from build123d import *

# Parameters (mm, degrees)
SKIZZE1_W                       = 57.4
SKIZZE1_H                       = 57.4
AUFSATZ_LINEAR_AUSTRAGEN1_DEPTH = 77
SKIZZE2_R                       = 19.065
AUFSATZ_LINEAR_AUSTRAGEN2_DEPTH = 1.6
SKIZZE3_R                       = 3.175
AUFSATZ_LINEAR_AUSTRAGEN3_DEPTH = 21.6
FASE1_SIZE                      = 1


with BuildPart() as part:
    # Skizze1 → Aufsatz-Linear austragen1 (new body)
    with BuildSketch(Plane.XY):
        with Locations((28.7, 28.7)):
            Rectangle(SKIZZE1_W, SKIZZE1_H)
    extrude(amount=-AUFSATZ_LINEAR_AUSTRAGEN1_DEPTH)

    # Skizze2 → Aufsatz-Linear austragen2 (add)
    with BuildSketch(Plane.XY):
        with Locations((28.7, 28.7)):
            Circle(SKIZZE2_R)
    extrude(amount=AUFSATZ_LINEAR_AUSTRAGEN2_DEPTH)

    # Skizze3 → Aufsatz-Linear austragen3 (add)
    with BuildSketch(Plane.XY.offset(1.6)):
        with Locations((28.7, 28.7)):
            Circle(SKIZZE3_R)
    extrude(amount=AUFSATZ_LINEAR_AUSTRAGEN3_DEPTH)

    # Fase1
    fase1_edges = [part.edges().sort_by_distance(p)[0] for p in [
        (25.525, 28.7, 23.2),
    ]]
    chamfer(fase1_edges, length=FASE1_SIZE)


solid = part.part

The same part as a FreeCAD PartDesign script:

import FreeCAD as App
import Part
import Sketcher


def edges_at(feature, points):
    """Names of the edges that pass closest to the given points."""
    edges = feature.Shape.Edges
    near = lambda p: min(range(len(edges)), key=lambda i: edges[i].distToShape(Part.Vertex(*p))[0])
    return sorted({f"Edge{near(p) + 1}" for p in points})


def add_polygon(sketch, points):
    """Adds a closed chain of lines whose ends are joined by coincident constraints."""
    first, n = sketch.GeometryCount, len(points)
    for a, b in zip(points, points[1:] + points[:1]):
        sketch.addGeometry(Part.LineSegment(App.Vector(*a, 0), App.Vector(*b, 0)), False)
    for i in range(n):
        sketch.addConstraint(Sketcher.Constraint("Coincident", first + i, 2, first + (i + 1) % n, 1))

doc = App.newDocument("Part")
body = doc.addObject("PartDesign::Body", "Body")

sketch1 = body.newObject("Sketcher::SketchObject", "Sketch")
sketch1.AttachmentSupport = (doc.getObject("XY_Plane"), [""])
sketch1.MapMode = "FlatFace"
add_polygon(sketch1, [(0, 57.4), (0, 0), (57.4, 0), (57.4, 57.4)])
sketch1.addConstraint([
    Sketcher.Constraint("Vertical", 0),
    Sketcher.Constraint("Horizontal", 1),
    Sketcher.Constraint("Vertical", 2),
    Sketcher.Constraint("Horizontal", 3),
    Sketcher.Constraint("Coincident", 0, 2, -1, 1),
    Sketcher.Constraint("Equal", 3, 0),
    Sketcher.Constraint("DistanceX", 1, 1, 1, 2, 57.4),
])
pad1 = body.newObject("PartDesign::Pad", "Pad")
pad1.Profile = sketch1
pad1.Length = 77
pad1.Reversed = True

sketch2 = body.newObject("Sketcher::SketchObject", "Sketch001")
sketch2.AttachmentSupport = (doc.getObject("XY_Plane"), [""])
sketch2.MapMode = "FlatFace"
sketch2.addGeometry(Part.Circle(App.Vector(28.7, 28.7, 0), App.Vector(0, 0, 1), 19.065), False)
sketch2.addConstraint([
    Sketcher.Constraint("Diameter", 0, 38.13),
    Sketcher.Constraint("DistanceX", -1, 1, 0, 3, 28.7),
    Sketcher.Constraint("DistanceY", -1, 1, 0, 3, 28.7),
])
pad2 = body.newObject("PartDesign::Pad", "Pad001")
pad2.Profile = sketch2
pad2.Length = 1.6

sketch3 = body.newObject("Sketcher::SketchObject", "Sketch002")
sketch3.AttachmentSupport = (doc.getObject("XY_Plane"), [""])
sketch3.MapMode = "FlatFace"
sketch3.AttachmentOffset = App.Placement(App.Vector(0, 0, 1.6), App.Rotation())
sketch3.addGeometry(Part.Circle(App.Vector(28.7, 28.7, 0), App.Vector(0, 0, 1), 3.175), False)
sketch3.addConstraint([
    Sketcher.Constraint("Diameter", 0, 6.35),
    Sketcher.Constraint("DistanceX", -1, 1, 0, 3, 28.7),
    Sketcher.Constraint("DistanceY", -1, 1, 0, 3, 28.7),
])
pad3 = body.newObject("PartDesign::Pad", "Pad002")
pad3.Profile = sketch3
pad3.Length = 21.6
doc.recompute()

chamfer = body.newObject("PartDesign::Chamfer", "Chamfer")
chamfer.Base = (pad3, edges_at(pad3, [(25.525, 28.7, 23.2)]))
chamfer.Size = 1

doc.recompute()
